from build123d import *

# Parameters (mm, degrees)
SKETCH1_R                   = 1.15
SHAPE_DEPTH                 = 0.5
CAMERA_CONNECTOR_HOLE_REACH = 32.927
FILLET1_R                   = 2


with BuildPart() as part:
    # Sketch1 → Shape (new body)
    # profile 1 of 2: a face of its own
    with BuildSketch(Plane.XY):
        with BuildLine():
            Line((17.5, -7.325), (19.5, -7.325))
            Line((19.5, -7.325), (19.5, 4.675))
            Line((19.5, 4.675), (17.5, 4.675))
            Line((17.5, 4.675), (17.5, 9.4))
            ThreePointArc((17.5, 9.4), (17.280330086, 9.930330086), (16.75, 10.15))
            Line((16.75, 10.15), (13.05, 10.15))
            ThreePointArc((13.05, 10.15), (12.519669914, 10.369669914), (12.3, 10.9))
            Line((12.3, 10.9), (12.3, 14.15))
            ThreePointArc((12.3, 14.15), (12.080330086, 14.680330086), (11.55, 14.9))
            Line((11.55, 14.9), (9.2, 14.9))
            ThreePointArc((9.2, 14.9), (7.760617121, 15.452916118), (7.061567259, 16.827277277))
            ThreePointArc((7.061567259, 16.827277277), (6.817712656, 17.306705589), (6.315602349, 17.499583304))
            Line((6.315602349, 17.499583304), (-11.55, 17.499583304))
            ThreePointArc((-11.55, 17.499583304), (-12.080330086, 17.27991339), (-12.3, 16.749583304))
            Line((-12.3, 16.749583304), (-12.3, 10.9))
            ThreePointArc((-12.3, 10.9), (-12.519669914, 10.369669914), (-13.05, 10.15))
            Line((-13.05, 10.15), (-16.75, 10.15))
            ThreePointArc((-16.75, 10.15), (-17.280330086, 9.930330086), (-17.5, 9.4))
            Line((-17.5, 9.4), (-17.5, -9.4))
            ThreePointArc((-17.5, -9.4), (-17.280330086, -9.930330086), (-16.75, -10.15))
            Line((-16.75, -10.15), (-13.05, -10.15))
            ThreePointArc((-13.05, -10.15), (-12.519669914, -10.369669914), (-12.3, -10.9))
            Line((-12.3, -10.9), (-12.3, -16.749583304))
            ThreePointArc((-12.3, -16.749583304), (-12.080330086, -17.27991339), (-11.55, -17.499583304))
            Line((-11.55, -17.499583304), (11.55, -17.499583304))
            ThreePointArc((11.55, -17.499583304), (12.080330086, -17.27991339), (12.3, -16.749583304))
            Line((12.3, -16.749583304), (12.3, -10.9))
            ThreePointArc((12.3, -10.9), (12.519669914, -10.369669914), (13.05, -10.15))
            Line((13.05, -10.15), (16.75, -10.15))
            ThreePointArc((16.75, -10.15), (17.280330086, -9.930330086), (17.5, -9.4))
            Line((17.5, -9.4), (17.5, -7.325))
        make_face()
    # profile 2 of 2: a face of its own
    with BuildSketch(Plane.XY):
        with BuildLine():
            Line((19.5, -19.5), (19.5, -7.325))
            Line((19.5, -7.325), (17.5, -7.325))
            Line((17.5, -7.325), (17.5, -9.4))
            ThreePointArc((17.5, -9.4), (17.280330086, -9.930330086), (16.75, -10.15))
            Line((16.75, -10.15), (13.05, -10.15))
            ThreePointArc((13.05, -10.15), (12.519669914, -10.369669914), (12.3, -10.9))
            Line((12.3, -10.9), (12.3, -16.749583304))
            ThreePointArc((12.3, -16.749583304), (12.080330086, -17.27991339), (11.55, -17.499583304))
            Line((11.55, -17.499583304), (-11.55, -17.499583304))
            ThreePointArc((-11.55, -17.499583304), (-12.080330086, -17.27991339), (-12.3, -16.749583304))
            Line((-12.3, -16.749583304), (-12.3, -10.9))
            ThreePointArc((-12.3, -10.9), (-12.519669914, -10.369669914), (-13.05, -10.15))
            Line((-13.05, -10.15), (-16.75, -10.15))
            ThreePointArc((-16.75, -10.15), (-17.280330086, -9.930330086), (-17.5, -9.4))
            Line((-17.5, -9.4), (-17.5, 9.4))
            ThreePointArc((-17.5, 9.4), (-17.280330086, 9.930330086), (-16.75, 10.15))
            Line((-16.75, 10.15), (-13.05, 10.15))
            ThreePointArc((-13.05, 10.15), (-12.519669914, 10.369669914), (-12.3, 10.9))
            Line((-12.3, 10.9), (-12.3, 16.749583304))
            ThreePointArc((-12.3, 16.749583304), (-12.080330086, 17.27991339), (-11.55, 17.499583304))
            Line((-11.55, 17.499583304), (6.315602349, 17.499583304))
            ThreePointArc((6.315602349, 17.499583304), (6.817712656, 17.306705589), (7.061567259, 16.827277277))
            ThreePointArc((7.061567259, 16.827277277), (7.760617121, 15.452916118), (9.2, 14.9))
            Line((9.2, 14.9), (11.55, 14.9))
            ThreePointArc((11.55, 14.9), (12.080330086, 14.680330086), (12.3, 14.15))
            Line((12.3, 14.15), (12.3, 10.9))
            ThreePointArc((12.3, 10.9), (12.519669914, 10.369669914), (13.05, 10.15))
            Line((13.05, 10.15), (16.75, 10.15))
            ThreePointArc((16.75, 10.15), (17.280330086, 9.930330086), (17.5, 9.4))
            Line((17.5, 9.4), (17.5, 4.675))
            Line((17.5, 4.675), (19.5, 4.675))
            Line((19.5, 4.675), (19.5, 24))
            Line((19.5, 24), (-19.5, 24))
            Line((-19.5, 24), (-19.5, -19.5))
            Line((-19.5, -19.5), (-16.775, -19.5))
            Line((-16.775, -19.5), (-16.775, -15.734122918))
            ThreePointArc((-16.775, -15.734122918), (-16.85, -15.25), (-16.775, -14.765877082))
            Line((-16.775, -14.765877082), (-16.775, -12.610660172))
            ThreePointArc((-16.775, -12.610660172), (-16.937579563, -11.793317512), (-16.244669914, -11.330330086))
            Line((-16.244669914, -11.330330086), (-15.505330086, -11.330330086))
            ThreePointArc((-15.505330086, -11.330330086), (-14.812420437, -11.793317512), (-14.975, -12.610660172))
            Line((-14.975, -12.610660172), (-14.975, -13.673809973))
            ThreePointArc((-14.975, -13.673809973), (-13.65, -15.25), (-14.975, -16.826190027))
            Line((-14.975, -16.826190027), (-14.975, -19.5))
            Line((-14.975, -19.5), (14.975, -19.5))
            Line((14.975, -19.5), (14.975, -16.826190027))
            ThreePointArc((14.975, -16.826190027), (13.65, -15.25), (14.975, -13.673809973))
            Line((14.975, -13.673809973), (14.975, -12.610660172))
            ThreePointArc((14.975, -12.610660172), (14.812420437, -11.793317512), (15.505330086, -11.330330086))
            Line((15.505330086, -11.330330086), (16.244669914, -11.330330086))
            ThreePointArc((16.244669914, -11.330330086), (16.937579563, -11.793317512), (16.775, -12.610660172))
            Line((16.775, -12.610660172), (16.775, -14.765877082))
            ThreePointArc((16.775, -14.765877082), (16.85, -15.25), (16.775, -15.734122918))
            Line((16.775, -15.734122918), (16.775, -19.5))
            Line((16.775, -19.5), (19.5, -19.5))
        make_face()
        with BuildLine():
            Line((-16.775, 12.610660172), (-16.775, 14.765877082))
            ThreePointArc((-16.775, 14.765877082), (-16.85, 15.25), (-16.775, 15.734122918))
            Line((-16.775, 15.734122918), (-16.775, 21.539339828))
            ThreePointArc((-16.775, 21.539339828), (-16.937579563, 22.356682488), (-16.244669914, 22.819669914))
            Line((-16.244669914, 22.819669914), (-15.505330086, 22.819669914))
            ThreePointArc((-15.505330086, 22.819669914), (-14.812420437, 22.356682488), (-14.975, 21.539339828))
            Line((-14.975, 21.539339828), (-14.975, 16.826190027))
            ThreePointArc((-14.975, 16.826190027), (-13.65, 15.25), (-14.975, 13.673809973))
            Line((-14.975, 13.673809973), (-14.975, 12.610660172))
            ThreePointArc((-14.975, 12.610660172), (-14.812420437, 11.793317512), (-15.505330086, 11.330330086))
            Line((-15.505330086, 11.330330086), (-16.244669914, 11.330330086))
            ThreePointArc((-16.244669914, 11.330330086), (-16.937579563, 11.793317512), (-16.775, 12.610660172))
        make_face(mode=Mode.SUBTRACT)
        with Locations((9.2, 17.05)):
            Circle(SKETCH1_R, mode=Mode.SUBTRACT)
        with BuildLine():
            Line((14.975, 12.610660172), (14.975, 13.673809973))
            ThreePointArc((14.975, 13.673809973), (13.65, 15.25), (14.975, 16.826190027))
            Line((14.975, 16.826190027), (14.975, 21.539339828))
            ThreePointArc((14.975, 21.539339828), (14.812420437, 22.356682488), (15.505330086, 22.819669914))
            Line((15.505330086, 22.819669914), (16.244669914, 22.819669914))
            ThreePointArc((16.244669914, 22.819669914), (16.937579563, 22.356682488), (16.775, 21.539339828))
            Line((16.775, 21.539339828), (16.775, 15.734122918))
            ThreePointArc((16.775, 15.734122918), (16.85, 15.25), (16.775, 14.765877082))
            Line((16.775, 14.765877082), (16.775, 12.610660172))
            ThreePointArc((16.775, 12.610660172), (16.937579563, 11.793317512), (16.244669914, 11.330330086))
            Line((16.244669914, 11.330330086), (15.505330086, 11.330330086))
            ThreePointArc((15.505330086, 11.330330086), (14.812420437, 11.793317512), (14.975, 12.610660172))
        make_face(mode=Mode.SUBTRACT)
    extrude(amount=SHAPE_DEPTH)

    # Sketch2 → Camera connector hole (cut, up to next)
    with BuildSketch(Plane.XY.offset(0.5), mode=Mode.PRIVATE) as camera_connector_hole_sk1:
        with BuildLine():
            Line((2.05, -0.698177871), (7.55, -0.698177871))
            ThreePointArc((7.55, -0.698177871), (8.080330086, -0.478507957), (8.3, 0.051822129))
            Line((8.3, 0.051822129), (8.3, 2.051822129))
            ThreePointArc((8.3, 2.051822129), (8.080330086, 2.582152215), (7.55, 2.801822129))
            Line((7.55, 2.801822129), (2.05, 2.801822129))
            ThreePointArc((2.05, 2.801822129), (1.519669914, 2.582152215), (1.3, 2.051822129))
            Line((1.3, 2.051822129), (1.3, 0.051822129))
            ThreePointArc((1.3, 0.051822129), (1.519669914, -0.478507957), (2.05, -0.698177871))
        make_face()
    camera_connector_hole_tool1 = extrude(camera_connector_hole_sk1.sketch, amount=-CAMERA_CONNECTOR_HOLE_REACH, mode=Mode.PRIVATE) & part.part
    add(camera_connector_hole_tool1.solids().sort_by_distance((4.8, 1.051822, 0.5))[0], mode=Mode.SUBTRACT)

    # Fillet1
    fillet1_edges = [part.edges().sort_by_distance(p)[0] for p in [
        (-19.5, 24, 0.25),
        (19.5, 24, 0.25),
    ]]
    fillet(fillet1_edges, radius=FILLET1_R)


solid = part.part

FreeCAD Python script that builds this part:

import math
import FreeCAD as App
import Part
import Sketcher


def edges_at(feature, points):
    """Names of the edges that pass closest to the given points."""
    edges = feature.Shape.Edges
    near = lambda p: min(range(len(edges)), key=lambda i: edges[i].distToShape(Part.Vertex(*p))[0])
    return sorted({f"Edge{near(p) + 1}" for p in points})

doc = App.newDocument("Part")
body = doc.addObject("PartDesign::Body", "Body")

# Sketch on XY plane
sketch1 = body.newObject("Sketcher::SketchObject", "Sketch")
sketch1.AttachmentSupport = (doc.getObject("XY_Plane"), [""])
sketch1.MapMode = "FlatFace"
sketch1.addGeometry([
    Part.LineSegment(App.Vector(19.5, 24, 0), App.Vector(-19.5, 24, 0)),  # 0
    Part.LineSegment(App.Vector(-19.5, 24, 0), App.Vector(-19.5, -19.5, 0)),  # 1
    Part.LineSegment(App.Vector(-19.5, -19.5, 0), App.Vector(-16.8, -19.5, 0)),  # 2
    Part.LineSegment(App.Vector(-16.8, -19.5, 0), App.Vector(-16.8, -15.7, 0)),  # 3
    Part.ArcOfCircle(Part.Circle(App.Vector(-15.3, -15.2, 0), App.Vector(0, 0, 1), 1.6), math.radians(162), math.radians(198)),  # 4
    Part.LineSegment(App.Vector(-16.8, -14.8, 0), App.Vector(-16.8, -12.6, 0)),  # 5
    Part.ArcOfCircle(Part.Circle(App.Vector(-16.2, -12.1, 0), App.Vector(0, 0, 1), 0.8), math.radians(90), math.radians(225)),  # 6
    Part.LineSegment(App.Vector(-16.2, -11.3, 0), App.Vector(-15.5, -11.3, 0)),  # 7
    Part.ArcOfCircle(Part.Circle(App.Vector(-15.5, -12.1, 0), App.Vector(0, 0, 1), 0.8), math.radians(-45), math.radians(90)),  # 8
    Part.LineSegment(App.Vector(-15, -12.6, 0), App.Vector(-15, -13.7, 0)),  # 9
    Part.ArcOfCircle(Part.Circle(App.Vector(-15.2, -15.2, 0), App.Vector(0, 0, 1), 1.6), math.radians(-80), math.radians(80)),  # 10
    Part.LineSegment(App.Vector(-15, -16.8, 0), App.Vector(-15, -19.5, 0)),  # 11
    Part.LineSegment(App.Vector(-15, -19.5, 0), App.Vector(15, -19.5, 0)),  # 12
    Part.LineSegment(App.Vector(15, -19.5, 0), App.Vector(15, -16.8, 0)),  # 13
    Part.ArcOfCircle(Part.Circle(App.Vector(15.2, -15.2, 0), App.Vector(0, 0, 1), 1.6), math.radians(100), math.radians(260)),  # 14
    Part.LineSegment(App.Vector(15, -13.7, 0), App.Vector(15, -12.6, 0)),  # 15
    Part.ArcOfCircle(Part.Circle(App.Vector(15.5, -12.1, 0), App.Vector(0, 0, 1), 0.8), math.radians(90), math.radians(225)),  # 16
    Part.LineSegment(App.Vector(15.5, -11.3, 0), App.Vector(16.2, -11.3, 0)),  # 17
    Part.ArcOfCircle(Part.Circle(App.Vector(16.2, -12.1, 0), App.Vector(0, 0, 1), 0.8), math.radians(-45), math.radians(90)),  # 18
    Part.LineSegment(App.Vector(16.8, -12.6, 0), App.Vector(16.8, -14.8, 0)),  # 19
    Part.ArcOfCircle(Part.Circle(App.Vector(15.3, -15.2, 0), App.Vector(0, 0, 1), 1.6), math.radians(-18), math.radians(18)),  # 20
    Part.LineSegment(App.Vector(16.8, -15.7, 0), App.Vector(16.8, -19.5, 0)),  # 21
    Part.LineSegment(App.Vector(16.8, -19.5, 0), App.Vector(19.5, -19.5, 0)),  # 22
    Part.LineSegment(App.Vector(19.5, -19.5, 0), App.Vector(19.5, 24, 0)),  # 23
    Part.LineSegment(App.Vector(15, 12.6, 0), App.Vector(15, 13.7, 0)),  # 24
    Part.ArcOfCircle(Part.Circle(App.Vector(15.2, 15.2, 0), App.Vector(0, 0, 1), 1.6), math.radians(100), math.radians(260)),  # 25
    Part.LineSegment(App.Vector(15, 16.8, 0), App.Vector(15, 21.5, 0)),  # 26
    Part.ArcOfCircle(Part.Circle(App.Vector(15.5, 22.1, 0), App.Vector(0, 0, 1), 0.8), math.radians(90), math.radians(225)),  # 27
    Part.LineSegment(App.Vector(15.5, 22.8, 0), App.Vector(16.2, 22.8, 0)),  # 28
    Part.ArcOfCircle(Part.Circle(App.Vector(16.2, 22.1, 0), App.Vector(0, 0, 1), 0.8), math.radians(-45), math.radians(90)),  # 29
    Part.LineSegment(App.Vector(16.8, 21.5, 0), App.Vector(16.8, 15.7, 0)),  # 30
    Part.ArcOfCircle(Part.Circle(App.Vector(15.3, 15.2, 0), App.Vector(0, 0, 1), 1.6), math.radians(-18), math.radians(18)),  # 31
    Part.LineSegment(App.Vector(16.8, 14.8, 0), App.Vector(16.8, 12.6, 0)),  # 32
    Part.ArcOfCircle(Part.Circle(App.Vector(16.2, 12.1, 0), App.Vector(0, 0, 1), 0.8), math.radians(-90), math.radians(45)),  # 33
    Part.LineSegment(App.Vector(16.2, 11.3, 0), App.Vector(15.5, 11.3, 0)),  # 34
    Part.ArcOfCircle(Part.Circle(App.Vector(15.5, 12.1, 0), App.Vector(0, 0, 1), 0.8), math.radians(135), math.radians(270)),  # 35
    Part.Circle(App.Vector(9.2, 17.1, 0), App.Vector(0, 0, 1), 1.1),  # 36
    Part.ArcOfCircle(Part.Circle(App.Vector(-16.2, 12.1, 0), App.Vector(0, 0, 1), 0.8), math.radians(135), math.radians(270)),  # 37
    Part.LineSegment(App.Vector(-16.8, 12.6, 0), App.Vector(-16.8, 14.8, 0)),  # 38
    Part.ArcOfCircle(Part.Circle(App.Vector(-15.3, 15.2, 0), App.Vector(0, 0, 1), 1.6), math.radians(162), math.radians(198)),  # 39
    Part.LineSegment(App.Vector(-16.8, 15.7, 0), App.Vector(-16.8, 21.5, 0)),  # 40
    Part.ArcOfCircle(Part.Circle(App.Vector(-16.2, 22.1, 0), App.Vector(0, 0, 1), 0.8), math.radians(90), math.radians(225)),  # 41
    Part.LineSegment(App.Vector(-16.2, 22.8, 0), App.Vector(-15.5, 22.8, 0)),  # 42
    Part.ArcOfCircle(Part.Circle(App.Vector(-15.5, 22.1, 0), App.Vector(0, 0, 1), 0.8), math.radians(-45), math.radians(90)),  # 43
    Part.LineSegment(App.Vector(-15, 21.5, 0), App.Vector(-15, 16.8, 0)),  # 44
    Part.ArcOfCircle(Part.Circle(App.Vector(-15.2, 15.2, 0), App.Vector(0, 0, 1), 1.6), math.radians(-80), math.radians(80)),  # 45
    Part.LineSegment(App.Vector(-15, 13.7, 0), App.Vector(-15, 12.6, 0)),  # 46
    Part.ArcOfCircle(Part.Circle(App.Vector(-15.5, 12.1, 0), App.Vector(0, 0, 1), 0.8), math.radians(-90), math.radians(45)),  # 47
    Part.LineSegment(App.Vector(-15.5, 11.3, 0), App.Vector(-16.2, 11.3, 0)),  # 48
], False)
sketch1.addConstraint([
    Sketcher.Constraint("Coincident", 0, 2, 1, 1),
    Sketcher.Constraint("Coincident", 1, 2, 2, 1),
    Sketcher.Constraint("Coincident", 2, 2, 3, 1),
    Sketcher.Constraint("Coincident", 3, 2, 4, 2),
    Sketcher.Constraint("Coincident", 4, 1, 5, 1),
    Sketcher.Constraint("Coincident", 5, 2, 6, 2),
    Sketcher.Constraint("Tangent", 6, 1, 7, 1),
    Sketcher.Constraint("Tangent", 7, 2, 8, 2),
    Sketcher.Constraint("Coincident", 8, 1, 9, 1),
    Sketcher.Constraint("Coincident", 9, 2, 10, 2),
    Sketcher.Constraint("Coincident", 10, 1, 11, 1),
    Sketcher.Constraint("Coincident", 11, 2, 12, 1),
    Sketcher.Constraint("Coincident", 12, 2, 13, 1),
    Sketcher.Constraint("Coincident", 13, 2, 14, 2),
    Sketcher.Constraint("Coincident", 14, 1, 15, 1),
    Sketcher.Constraint("Coincident", 15, 2, 16, 2),
    Sketcher.Constraint("Tangent", 16, 1, 17, 1),
    Sketcher.Constraint("Tangent", 17, 2, 18, 2),
    Sketcher.Constraint("Coincident", 18, 1, 19, 1),
    Sketcher.Constraint("Coincident", 19, 2, 20, 2),
    Sketcher.Constraint("Coincident", 20, 1, 21, 1),
    Sketcher.Constraint("Coincident", 21, 2, 22, 1),
    Sketcher.Constraint("Coincident", 22, 2, 23, 1),
    Sketcher.Constraint("Coincident", 23, 2, 0, 1),
    Sketcher.Constraint("Coincident", 24, 2, 25, 2),
    Sketcher.Constraint("Coincident", 25, 1, 26, 1),
    Sketcher.Constraint("Coincident", 26, 2, 27, 2),
    Sketcher.Constraint("Tangent", 27, 1, 28, 1),
    Sketcher.Constraint("Tangent", 28, 2, 29, 2),
    Sketcher.Constraint("Coincident", 29, 1, 30, 1),
    Sketcher.Constraint("Coincident", 30, 2, 31, 2),
    Sketcher.Constraint("Coincident", 31, 1, 32, 1),
    Sketcher.Constraint("Coincident", 32, 2, 33, 2),
    Sketcher.Constraint("Tangent", 33, 1, 34, 1),
    Sketcher.Constraint("Tangent", 34, 2, 35, 2),
    Sketcher.Constraint("Coincident", 35, 1, 24, 1),
    Sketcher.Constraint("Coincident", 37, 1, 38, 1),
    Sketcher.Constraint("Coincident", 38, 2, 39, 2),
    Sketcher.Constraint("Coincident", 39, 1, 40, 1),
    Sketcher.Constraint("Coincident", 40, 2, 41, 2),
    Sketcher.Constraint("Tangent", 41, 1, 42, 1),
    Sketcher.Constraint("Tangent", 42, 2, 43, 2),
    Sketcher.Constraint("Coincident", 43, 1, 44, 1),
    Sketcher.Constraint("Coincident", 44, 2, 45, 2),
    Sketcher.Constraint("Coincident", 45, 1, 46, 1),
    Sketcher.Constraint("Coincident", 46, 2, 47, 2),
    Sketcher.Constraint("Tangent", 47, 1, 48, 1),
    Sketcher.Constraint("Tangent", 48, 2, 37, 2),
    Sketcher.Constraint("Horizontal", 0),
    Sketcher.Constraint("Vertical", 1),
    Sketcher.Constraint("Horizontal", 2),
    Sketcher.Constraint("Vertical", 3),
    Sketcher.Constraint("Vertical", 5),
    Sketcher.Constraint("Horizontal", 7),
    Sketcher.Constraint("Vertical", 9),
    Sketcher.Constraint("Vertical", 11),
    Sketcher.Constraint("Horizontal", 12),
    Sketcher.Constraint("Vertical", 13),
    Sketcher.Constraint("Vertical", 15),
    Sketcher.Constraint("Horizontal", 17),
    Sketcher.Constraint("Vertical", 19),
    Sketcher.Constraint("Vertical", 21),
    Sketcher.Constraint("Horizontal", 22),
    Sketcher.Constraint("Vertical", 23),
    Sketcher.Constraint("Vertical", 24),
    Sketcher.Constraint("Vertical", 26),
    Sketcher.Constraint("Horizontal", 28),
    Sketcher.Constraint("Vertical", 30),
    Sketcher.Constraint("Vertical", 32),
    Sketcher.Constraint("Horizontal", 34),
    Sketcher.Constraint("Vertical", 38),
    Sketcher.Constraint("Vertical", 40),
    Sketcher.Constraint("Horizontal", 42),
    Sketcher.Constraint("Vertical", 44),
    Sketcher.Constraint("Vertical", 46),
    Sketcher.Constraint("Horizontal", 48),
    Sketcher.Constraint("Coincident", 10, 3, 4, 3),
    Sketcher.Constraint("Coincident", 20, 3, 14, 3),
    Sketcher.Constraint("Coincident", 31, 3, 25, 3),
    Sketcher.Constraint("Coincident", 45, 3, 39, 3),
    Sketcher.Constraint("Equal", 6, 8),
    Sketcher.Constraint("Equal", 4, 10),
    Sketcher.Constraint("Equal", 10, 14),
    Sketcher.Constraint("Equal", 8, 16),
    Sketcher.Constraint("Equal", 16, 18),
    Sketcher.Constraint("Equal", 14, 20),
    Sketcher.Constraint("Equal", 20, 25),
    Sketcher.Constraint("Equal", 18, 27),
    Sketcher.Constraint("Equal", 27, 29),
    Sketcher.Constraint("Equal", 25, 31),
    Sketcher.Constraint("Equal", 29, 33),
    Sketcher.Constraint("Equal", 33, 35),
    Sketcher.Constraint("Equal", 35, 37),
    Sketcher.Constraint("Equal", 31, 39),
    Sketcher.Constraint("Equal", 37, 41),
    Sketcher.Constraint("Equal", 41, 43),
    Sketcher.Constraint("Equal", 39, 45),
    Sketcher.Constraint("Equal", 43, 47),
    Sketcher.Constraint("Symmetric", 4, 3, 25, 3, -1, 1),
    Sketcher.Constraint("Symmetric", 6, 3, 33, 3, -1, 1),
    Sketcher.Constraint("Symmetric", 18, 3, 37, 3, -1, 1),
    Sketcher.Constraint("Symmetric", 14, 3, 39, 3, -1, 1),
    Sketcher.Constraint("Symmetric", 8, 1, 35, 1, -1, 1),
    Sketcher.Constraint("Symmetric", 15, 2, 46, 2, -1, 1),
    Sketcher.Constraint("Symmetric", 4, 3, 14, 3, -2),
    Sketcher.Constraint("Symmetric", 8, 3, 16, 3, -2),
    Sketcher.Constraint("Symmetric", 29, 3, 41, 3, -2),
    Sketcher.Constraint("Symmetric", 5, 2, 18, 1, -2),
    Sketcher.Constraint("Symmetric", 2, 2, 21, 2, -2),
    Sketcher.Constraint("Symmetric", 26, 2, 43, 1, -2),
    Sketcher.Constraint("Horizontal", 5, 2, 8, 1),
    Sketcher.Constraint("Horizontal", 2, 2, 11, 2),
    Sketcher.Constraint("Horizontal", 10, 1, 13, 2),
    Sketcher.Constraint("Horizontal", 9, 2, 14, 1),
    Sketcher.Constraint("Horizontal", 26, 2, 29, 1),
    Sketcher.Constraint("Horizontal", 32, 2, 35, 1),
    Sketcher.Constraint("Horizontal", 35, 1, 37, 1),
    Sketcher.Constraint("Horizontal", 30, 2, 39, 1),
    Sketcher.Constraint("Vertical", 16, 3, 27, 3),
    Sketcher.Constraint("Vertical", 18, 3, 29, 3),
    Sketcher.Constraint("Vertical", 3, 2, 4, 1),
    Sketcher.Constraint("Vertical", 9, 2, 10, 1),
    Sketcher.Constraint("Vertical", 24, 2, 25, 1),
    Sketcher.Constraint("Equal", 2, 22),
    Sketcher.Constraint("Diameter", 36, 2.3),
    Sketcher.Constraint("Radius", 4, 1.6),
    Sketcher.Constraint("DistanceX", 0, 2, 0, 1, 39.0),
    Sketcher.Constraint("Radius", 6, 0.75),
    Sketcher.Constraint("DistanceY", 1, 2, 1, 1, 43.5),
    Sketcher.Constraint("DistanceY", -1, 1, 0, 2, 24.0),
    Sketcher.Constraint("DistanceX", 12, 1, 12, 2, 29.95),
    Sketcher.Constraint("DistanceX", -1, 1, 36, 3, 9.2),
    Sketcher.Constraint("DistanceX", 2, 1, 2, 2, 2.725),
    Sketcher.Constraint("DistanceX", 4, 3, -1, 1, 15.25),
    Sketcher.Constraint("DistanceY", 4, 3, -1, 1, 15.25),
    Sketcher.Constraint("DistanceY", -1, 1, 36, 3, 17.05),
    Sketcher.Constraint("DistanceX", 7, 1, 7, 2, 0.73934),
    Sketcher.Constraint("DistanceY", 9, 2, 9, 1, 1.06315),
    Sketcher.Constraint("DistanceY", 26, 1, 26, 2, 4.71315),
])
pad1 = body.newObject("PartDesign::Pad", "Pad")
pad1.Profile = sketch1
pad1.Length = 0.5

# Sketch on XY plane
sketch2 = body.newObject("Sketcher::SketchObject", "Sketch001")
sketch2.AttachmentSupport = (doc.getObject("XY_Plane"), [""])
sketch2.MapMode = "FlatFace"
sketch2.AttachmentOffset = App.Placement(App.Vector(0, 0, 0.5), App.Rotation())
sketch2.addGeometry([
    Part.LineSegment(App.Vector(2, -0.7, 0), App.Vector(7.5, -0.7, 0)),  # 0
    Part.ArcOfCircle(Part.Circle(App.Vector(7.5, 0.1, 0), App.Vector(0, 0, 1), 0.8), math.radians(-90), math.radians(0)),  # 1
    Part.LineSegment(App.Vector(8.3, 0.1, 0), App.Vector(8.3, 2.1, 0)),  # 2
    Part.ArcOfCircle(Part.Circle(App.Vector(7.5, 2.1, 0), App.Vector(0, 0, 1), 0.8), math.radians(0), math.radians(90)),  # 3
    Part.LineSegment(App.Vector(7.5, 2.8, 0), App.Vector(2, 2.8, 0)),  # 4
    Part.ArcOfCircle(Part.Circle(App.Vector(2, 2.1, 0), App.Vector(0, 0, 1), 0.8), math.radians(90), math.radians(180)),  # 5
    Part.LineSegment(App.Vector(1.3, 2.1, 0), App.Vector(1.3, 0.1, 0)),  # 6
    Part.ArcOfCircle(Part.Circle(App.Vector(2, 0.1, 0), App.Vector(0, 0, 1), 0.8), math.radians(180), math.radians(270)),  # 7
], False)
sketch2.addConstraint([
    Sketcher.Constraint("Tangent", 0, 2, 1, 1),
    Sketcher.Constraint("Tangent", 1, 2, 2, 1),
    Sketcher.Constraint("Tangent", 2, 2, 3, 1),
    Sketcher.Constraint("Tangent", 3, 2, 4, 1),
    Sketcher.Constraint("Tangent", 4, 2, 5, 1),
    Sketcher.Constraint("Tangent", 5, 2, 6, 1),
    Sketcher.Constraint("Tangent", 6, 2, 7, 1),
    Sketcher.Constraint("Tangent", 7, 2, 0, 1),
    Sketcher.Constraint("Horizontal", 0),
    Sketcher.Constraint("Vertical", 2),
    Sketcher.Constraint("Horizontal", 4),
    Sketcher.Constraint("Vertical", 6),
    Sketcher.Constraint("Equal", 1, 3),
    Sketcher.Constraint("Equal", 3, 5),
    Sketcher.Constraint("Equal", 5, 7),
    Sketcher.Constraint("DistanceY", 2, 1, 2, 2, 2.0),
    Sketcher.Constraint("Radius", 1, 0.75),
    Sketcher.Constraint("DistanceX", 0, 1, 0, 2, 5.5),
    Sketcher.Constraint("DistanceX", -1, 1, 1, 2, 8.3),
    Sketcher.Constraint("DistanceY", -1, 1, 1, 3, 0.051822),
])
pocket1 = body.newObject("PartDesign::Pocket", "Pocket")
pocket1.Profile = sketch2
pocket1.Type = "UpToFirst"
doc.recompute()

fillet = body.newObject("PartDesign::Fillet", "Fillet")
fillet.Base = (pocket1, edges_at(pocket1, [(-19.5, 24, 0.25), (19.5, 24, 0.25)]))
fillet.Radius = 2

doc.recompute()
